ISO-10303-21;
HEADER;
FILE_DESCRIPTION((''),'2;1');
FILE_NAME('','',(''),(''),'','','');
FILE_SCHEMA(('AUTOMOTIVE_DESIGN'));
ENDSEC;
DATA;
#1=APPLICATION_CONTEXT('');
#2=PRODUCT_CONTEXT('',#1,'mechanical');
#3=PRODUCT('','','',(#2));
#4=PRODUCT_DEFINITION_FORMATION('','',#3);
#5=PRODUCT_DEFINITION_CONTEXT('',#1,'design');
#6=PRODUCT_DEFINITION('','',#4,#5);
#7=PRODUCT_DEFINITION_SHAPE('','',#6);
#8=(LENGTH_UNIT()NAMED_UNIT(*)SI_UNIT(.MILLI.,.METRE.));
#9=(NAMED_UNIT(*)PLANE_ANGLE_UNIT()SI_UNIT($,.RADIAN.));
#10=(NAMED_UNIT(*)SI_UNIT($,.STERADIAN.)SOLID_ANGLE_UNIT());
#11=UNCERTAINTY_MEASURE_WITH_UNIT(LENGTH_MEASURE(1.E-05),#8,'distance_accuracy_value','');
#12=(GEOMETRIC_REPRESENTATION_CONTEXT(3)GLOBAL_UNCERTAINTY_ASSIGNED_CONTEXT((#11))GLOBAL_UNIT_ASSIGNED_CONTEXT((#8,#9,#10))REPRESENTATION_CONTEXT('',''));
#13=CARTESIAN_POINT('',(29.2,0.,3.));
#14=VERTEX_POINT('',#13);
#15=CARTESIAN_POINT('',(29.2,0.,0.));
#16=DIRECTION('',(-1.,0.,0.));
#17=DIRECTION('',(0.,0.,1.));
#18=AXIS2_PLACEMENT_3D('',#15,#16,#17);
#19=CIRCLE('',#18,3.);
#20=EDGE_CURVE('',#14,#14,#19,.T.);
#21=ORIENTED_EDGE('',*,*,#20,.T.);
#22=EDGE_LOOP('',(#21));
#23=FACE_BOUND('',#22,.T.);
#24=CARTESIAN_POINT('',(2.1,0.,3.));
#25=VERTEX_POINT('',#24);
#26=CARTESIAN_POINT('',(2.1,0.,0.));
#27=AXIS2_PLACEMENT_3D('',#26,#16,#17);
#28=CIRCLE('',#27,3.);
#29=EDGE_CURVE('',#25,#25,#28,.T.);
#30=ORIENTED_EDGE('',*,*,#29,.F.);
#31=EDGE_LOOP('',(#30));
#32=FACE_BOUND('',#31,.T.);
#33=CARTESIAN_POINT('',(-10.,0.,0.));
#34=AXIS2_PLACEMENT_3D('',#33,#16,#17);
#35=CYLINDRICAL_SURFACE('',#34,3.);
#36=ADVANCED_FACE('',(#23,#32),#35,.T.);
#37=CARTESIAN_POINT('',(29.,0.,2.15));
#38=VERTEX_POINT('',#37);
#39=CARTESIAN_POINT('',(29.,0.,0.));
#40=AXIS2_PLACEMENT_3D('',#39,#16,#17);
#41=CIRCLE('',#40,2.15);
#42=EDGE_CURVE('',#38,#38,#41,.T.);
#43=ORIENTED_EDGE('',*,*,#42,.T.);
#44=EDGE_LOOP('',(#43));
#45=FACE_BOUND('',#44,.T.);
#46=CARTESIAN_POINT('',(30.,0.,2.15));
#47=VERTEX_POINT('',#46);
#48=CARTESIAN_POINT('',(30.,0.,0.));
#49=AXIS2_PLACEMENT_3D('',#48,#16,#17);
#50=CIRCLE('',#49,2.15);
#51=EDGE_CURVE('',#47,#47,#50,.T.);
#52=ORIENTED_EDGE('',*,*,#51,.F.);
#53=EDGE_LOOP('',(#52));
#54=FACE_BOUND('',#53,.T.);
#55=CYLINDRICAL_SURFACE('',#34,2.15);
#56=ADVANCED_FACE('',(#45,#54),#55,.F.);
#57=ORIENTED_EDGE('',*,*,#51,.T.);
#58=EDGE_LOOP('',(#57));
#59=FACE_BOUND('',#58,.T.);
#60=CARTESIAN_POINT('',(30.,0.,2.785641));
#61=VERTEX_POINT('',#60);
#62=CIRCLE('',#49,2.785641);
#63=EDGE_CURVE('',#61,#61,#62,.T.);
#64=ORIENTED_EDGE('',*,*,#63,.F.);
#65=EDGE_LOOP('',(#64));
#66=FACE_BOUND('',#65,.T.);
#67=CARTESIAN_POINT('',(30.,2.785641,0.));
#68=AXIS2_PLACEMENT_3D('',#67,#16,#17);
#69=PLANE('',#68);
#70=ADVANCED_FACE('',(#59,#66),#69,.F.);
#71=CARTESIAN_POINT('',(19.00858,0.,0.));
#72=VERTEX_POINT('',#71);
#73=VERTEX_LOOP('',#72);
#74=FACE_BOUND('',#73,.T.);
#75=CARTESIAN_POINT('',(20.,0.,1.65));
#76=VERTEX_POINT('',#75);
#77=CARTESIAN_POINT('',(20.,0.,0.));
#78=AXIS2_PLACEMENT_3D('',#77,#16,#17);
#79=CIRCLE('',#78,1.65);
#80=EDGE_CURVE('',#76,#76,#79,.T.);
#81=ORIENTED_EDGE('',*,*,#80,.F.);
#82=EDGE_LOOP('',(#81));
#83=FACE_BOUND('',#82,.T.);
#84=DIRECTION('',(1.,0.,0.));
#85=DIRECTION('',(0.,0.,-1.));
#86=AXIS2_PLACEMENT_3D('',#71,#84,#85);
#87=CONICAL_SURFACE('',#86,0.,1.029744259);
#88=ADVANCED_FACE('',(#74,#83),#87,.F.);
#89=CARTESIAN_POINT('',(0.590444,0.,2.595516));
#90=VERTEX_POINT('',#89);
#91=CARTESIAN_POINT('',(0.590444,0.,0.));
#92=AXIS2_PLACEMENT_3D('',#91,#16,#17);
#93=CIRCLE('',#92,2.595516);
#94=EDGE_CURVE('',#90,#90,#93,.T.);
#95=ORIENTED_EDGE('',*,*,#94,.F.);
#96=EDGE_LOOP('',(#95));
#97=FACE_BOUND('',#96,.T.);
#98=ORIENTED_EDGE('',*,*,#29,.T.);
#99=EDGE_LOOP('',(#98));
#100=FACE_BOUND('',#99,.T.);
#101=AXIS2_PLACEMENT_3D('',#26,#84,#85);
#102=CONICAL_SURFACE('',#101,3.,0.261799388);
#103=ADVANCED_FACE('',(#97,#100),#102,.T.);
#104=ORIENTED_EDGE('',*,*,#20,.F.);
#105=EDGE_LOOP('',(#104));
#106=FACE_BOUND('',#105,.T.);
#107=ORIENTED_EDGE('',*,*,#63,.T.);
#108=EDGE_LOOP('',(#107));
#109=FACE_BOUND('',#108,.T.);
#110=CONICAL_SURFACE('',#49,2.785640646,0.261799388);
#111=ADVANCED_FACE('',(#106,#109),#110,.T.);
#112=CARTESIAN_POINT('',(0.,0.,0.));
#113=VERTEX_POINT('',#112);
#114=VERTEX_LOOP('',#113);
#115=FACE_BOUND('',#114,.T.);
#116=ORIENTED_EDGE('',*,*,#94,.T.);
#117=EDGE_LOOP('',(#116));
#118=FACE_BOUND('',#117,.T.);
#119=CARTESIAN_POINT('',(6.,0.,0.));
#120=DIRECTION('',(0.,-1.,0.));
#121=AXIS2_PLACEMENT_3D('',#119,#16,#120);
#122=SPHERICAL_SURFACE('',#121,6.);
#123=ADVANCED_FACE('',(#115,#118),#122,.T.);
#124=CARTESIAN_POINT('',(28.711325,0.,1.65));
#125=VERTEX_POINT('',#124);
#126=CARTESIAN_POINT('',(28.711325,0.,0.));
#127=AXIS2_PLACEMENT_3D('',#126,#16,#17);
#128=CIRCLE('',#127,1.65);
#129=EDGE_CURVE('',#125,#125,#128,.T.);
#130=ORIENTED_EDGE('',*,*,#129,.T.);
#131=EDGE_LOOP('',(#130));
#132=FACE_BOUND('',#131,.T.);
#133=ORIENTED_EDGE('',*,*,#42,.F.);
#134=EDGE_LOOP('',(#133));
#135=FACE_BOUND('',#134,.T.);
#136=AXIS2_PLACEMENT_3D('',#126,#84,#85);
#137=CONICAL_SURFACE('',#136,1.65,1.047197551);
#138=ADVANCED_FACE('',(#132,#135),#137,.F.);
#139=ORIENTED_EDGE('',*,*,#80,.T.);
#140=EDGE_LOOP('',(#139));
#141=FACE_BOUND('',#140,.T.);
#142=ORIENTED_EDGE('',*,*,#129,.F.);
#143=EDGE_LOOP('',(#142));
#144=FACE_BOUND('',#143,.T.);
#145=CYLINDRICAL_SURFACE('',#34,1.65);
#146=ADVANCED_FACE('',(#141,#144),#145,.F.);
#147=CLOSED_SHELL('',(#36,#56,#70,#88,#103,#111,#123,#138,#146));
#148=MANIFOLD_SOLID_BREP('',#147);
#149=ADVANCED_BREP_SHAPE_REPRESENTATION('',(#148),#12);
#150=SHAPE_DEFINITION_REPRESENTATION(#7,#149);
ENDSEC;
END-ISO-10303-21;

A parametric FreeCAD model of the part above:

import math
import FreeCAD as App
import Part
import Sketcher
Q = App.Units.Quantity


def add_polygon(sketch, points):
    """Adds a closed chain of lines whose ends are joined by coincident constraints."""
    first, n = sketch.GeometryCount, len(points)
    for a, b in zip(points, points[1:] + points[:1]):
        sketch.addGeometry(Part.LineSegment(App.Vector(*a, 0), App.Vector(*b, 0)), False)
    for i in range(n):
        sketch.addConstraint(Sketcher.Constraint("Coincident", first + i, 2, first + (i + 1) % n, 1))

doc = App.newDocument("Part")
body = doc.addObject("PartDesign::Body", "Body")

sketch1 = body.newObject("Sketcher::SketchObject", "Sketch")
sketch1.AttachmentSupport = (doc.getObject("XY_Plane"), [""])
sketch1.MapMode = "FlatFace"
add_polygon(sketch1, [(0, 2.4), (0, 0), (19, 0), (20, 1.6), (28.7, 1.6), (29, 2.1), (30, 2.1), (30, 2.8), (29.2, 3), (2.1, 3)])
sketch1.addConstraint(Sketcher.Constraint("Vertical", 0))
sketch1.addConstraint(Sketcher.Constraint("Horizontal", 1))
sketch1.addConstraint(Sketcher.Constraint("Horizontal", 3))
sketch1.addConstraint(Sketcher.Constraint("Horizontal", 5))
sketch1.addConstraint(Sketcher.Constraint("Vertical", 6))
sketch1.addConstraint(Sketcher.Constraint("Horizontal", 8))
sketch1.addConstraint(Sketcher.Constraint("Coincident", 0, 2, -1, 1))
sketch1.addConstraint(Sketcher.Constraint("DistanceX", 5, 1, 5, 2, Q("1 mm")))
sketch1.addConstraint(Sketcher.Constraint("Angle", 2, Q("59 deg")))
sketch1.addConstraint(Sketcher.Constraint("Angle", 4, Q("60 deg")))
sketch1.addConstraint(Sketcher.Constraint("Angle", 7, Q("165 deg")))
sketch1.addConstraint(Sketcher.Constraint("Angle", 9, Q("-165 deg")))
sketch1.addConstraint(Sketcher.Constraint("DistanceX", 8, 2, 8, 1, Q("27.1 mm")))
sketch1.addConstraint(Sketcher.Constraint("DistanceX", -1, 1, 2, 2, Q("20 mm")))
sketch1.addConstraint(Sketcher.Constraint("DistanceX", -1, 1, 4, 2, Q("29 mm")))
sketch1.addConstraint(Sketcher.Constraint("DistanceY", -1, 1, 7, 2, Q("3 mm")))
sketch1.addConstraint(Sketcher.Constraint("DistanceX", -1, 1, 7, 2, Q("29.2 mm")))
sketch1.addConstraint(Sketcher.Constraint("DistanceY", 3, 2, 4, 2, Q("0.5 mm")))
sketch1.addConstraint(Sketcher.Constraint("DistanceY", -1, 1, 2, 2, Q("1.65 mm")))
revolution = body.newObject("PartDesign::Revolution", "Revolution")
revolution.Profile = sketch1
revolution.ReferenceAxis = (sketch1, ["H_Axis"])
revolution.Angle = 360

sketch2 = body.newObject("Sketcher::SketchObject", "Sketch001")
sketch2.AttachmentSupport = (doc.getObject("XY_Plane"), [""])
sketch2.MapMode = "FlatFace"
sketch2.addGeometry(Part.LineSegment(App.Vector(0.6, 2.6, 0), App.Vector(0.6, 8, 0)), False)
sketch2.addGeometry(Part.LineSegment(App.Vector(0.6, 8, 0), App.Vector(-5, 8, 0)), False)
sketch2.addGeometry(Part.LineSegment(App.Vector(-5, 8, 0), App.Vector(-5, 0, 0)), False)
sketch2.addGeometry(Part.LineSegment(App.Vector(-5, 0, 0), App.Vector(0, 0, 0)), False)
sketch2.addGeometry(Part.ArcOfCircle(Part.Circle(App.Vector(6, 0, 0), App.Vector(0, 0, 1), 6), math.radians(154), math.radians(180)), False)
sketch2.addConstraint(Sketcher.Constraint("Coincident", 0, 2, 1, 1))
sketch2.addConstraint(Sketcher.Constraint("Coincident", 1, 2, 2, 1))
sketch2.addConstraint(Sketcher.Constraint("Coincident", 2, 2, 3, 1))
sketch2.addConstraint(Sketcher.Constraint("Coincident", 3, 2, 4, 2))
sketch2.addConstraint(Sketcher.Constraint("Coincident", 4, 1, 0, 1))
sketch2.addConstraint(Sketcher.Constraint("Vertical", 0))
sketch2.addConstraint(Sketcher.Constraint("Horizontal", 1))
sketch2.addConstraint(Sketcher.Constraint("Vertical", 2))
sketch2.addConstraint(Sketcher.Constraint("Horizontal", 3))
sketch2.addConstraint(Sketcher.Constraint("Coincident", 3, 2, -1, 1))
sketch2.addConstraint(Sketcher.Constraint("PointOnObject", 4, 3, -1))
sketch2.addConstraint(Sketcher.Constraint("Radius", 4, Q("6 mm")))
sketch2.addConstraint(Sketcher.Constraint("DistanceX", 3, 1, 3, 2, Q("5 mm")))
sketch2.addConstraint(Sketcher.Constraint("DistanceY", 2, 2, 2, 1, Q("8 mm")))
sketch2.addConstraint(Sketcher.Constraint("DistanceX", 1, 2, 1, 1, Q("5.590444 mm")))
groove = body.newObject("PartDesign::Groove", "Groove")
groove.Profile = sketch2
groove.ReferenceAxis = (sketch2, ["H_Axis"])
groove.Angle = 360

doc.recompute()
